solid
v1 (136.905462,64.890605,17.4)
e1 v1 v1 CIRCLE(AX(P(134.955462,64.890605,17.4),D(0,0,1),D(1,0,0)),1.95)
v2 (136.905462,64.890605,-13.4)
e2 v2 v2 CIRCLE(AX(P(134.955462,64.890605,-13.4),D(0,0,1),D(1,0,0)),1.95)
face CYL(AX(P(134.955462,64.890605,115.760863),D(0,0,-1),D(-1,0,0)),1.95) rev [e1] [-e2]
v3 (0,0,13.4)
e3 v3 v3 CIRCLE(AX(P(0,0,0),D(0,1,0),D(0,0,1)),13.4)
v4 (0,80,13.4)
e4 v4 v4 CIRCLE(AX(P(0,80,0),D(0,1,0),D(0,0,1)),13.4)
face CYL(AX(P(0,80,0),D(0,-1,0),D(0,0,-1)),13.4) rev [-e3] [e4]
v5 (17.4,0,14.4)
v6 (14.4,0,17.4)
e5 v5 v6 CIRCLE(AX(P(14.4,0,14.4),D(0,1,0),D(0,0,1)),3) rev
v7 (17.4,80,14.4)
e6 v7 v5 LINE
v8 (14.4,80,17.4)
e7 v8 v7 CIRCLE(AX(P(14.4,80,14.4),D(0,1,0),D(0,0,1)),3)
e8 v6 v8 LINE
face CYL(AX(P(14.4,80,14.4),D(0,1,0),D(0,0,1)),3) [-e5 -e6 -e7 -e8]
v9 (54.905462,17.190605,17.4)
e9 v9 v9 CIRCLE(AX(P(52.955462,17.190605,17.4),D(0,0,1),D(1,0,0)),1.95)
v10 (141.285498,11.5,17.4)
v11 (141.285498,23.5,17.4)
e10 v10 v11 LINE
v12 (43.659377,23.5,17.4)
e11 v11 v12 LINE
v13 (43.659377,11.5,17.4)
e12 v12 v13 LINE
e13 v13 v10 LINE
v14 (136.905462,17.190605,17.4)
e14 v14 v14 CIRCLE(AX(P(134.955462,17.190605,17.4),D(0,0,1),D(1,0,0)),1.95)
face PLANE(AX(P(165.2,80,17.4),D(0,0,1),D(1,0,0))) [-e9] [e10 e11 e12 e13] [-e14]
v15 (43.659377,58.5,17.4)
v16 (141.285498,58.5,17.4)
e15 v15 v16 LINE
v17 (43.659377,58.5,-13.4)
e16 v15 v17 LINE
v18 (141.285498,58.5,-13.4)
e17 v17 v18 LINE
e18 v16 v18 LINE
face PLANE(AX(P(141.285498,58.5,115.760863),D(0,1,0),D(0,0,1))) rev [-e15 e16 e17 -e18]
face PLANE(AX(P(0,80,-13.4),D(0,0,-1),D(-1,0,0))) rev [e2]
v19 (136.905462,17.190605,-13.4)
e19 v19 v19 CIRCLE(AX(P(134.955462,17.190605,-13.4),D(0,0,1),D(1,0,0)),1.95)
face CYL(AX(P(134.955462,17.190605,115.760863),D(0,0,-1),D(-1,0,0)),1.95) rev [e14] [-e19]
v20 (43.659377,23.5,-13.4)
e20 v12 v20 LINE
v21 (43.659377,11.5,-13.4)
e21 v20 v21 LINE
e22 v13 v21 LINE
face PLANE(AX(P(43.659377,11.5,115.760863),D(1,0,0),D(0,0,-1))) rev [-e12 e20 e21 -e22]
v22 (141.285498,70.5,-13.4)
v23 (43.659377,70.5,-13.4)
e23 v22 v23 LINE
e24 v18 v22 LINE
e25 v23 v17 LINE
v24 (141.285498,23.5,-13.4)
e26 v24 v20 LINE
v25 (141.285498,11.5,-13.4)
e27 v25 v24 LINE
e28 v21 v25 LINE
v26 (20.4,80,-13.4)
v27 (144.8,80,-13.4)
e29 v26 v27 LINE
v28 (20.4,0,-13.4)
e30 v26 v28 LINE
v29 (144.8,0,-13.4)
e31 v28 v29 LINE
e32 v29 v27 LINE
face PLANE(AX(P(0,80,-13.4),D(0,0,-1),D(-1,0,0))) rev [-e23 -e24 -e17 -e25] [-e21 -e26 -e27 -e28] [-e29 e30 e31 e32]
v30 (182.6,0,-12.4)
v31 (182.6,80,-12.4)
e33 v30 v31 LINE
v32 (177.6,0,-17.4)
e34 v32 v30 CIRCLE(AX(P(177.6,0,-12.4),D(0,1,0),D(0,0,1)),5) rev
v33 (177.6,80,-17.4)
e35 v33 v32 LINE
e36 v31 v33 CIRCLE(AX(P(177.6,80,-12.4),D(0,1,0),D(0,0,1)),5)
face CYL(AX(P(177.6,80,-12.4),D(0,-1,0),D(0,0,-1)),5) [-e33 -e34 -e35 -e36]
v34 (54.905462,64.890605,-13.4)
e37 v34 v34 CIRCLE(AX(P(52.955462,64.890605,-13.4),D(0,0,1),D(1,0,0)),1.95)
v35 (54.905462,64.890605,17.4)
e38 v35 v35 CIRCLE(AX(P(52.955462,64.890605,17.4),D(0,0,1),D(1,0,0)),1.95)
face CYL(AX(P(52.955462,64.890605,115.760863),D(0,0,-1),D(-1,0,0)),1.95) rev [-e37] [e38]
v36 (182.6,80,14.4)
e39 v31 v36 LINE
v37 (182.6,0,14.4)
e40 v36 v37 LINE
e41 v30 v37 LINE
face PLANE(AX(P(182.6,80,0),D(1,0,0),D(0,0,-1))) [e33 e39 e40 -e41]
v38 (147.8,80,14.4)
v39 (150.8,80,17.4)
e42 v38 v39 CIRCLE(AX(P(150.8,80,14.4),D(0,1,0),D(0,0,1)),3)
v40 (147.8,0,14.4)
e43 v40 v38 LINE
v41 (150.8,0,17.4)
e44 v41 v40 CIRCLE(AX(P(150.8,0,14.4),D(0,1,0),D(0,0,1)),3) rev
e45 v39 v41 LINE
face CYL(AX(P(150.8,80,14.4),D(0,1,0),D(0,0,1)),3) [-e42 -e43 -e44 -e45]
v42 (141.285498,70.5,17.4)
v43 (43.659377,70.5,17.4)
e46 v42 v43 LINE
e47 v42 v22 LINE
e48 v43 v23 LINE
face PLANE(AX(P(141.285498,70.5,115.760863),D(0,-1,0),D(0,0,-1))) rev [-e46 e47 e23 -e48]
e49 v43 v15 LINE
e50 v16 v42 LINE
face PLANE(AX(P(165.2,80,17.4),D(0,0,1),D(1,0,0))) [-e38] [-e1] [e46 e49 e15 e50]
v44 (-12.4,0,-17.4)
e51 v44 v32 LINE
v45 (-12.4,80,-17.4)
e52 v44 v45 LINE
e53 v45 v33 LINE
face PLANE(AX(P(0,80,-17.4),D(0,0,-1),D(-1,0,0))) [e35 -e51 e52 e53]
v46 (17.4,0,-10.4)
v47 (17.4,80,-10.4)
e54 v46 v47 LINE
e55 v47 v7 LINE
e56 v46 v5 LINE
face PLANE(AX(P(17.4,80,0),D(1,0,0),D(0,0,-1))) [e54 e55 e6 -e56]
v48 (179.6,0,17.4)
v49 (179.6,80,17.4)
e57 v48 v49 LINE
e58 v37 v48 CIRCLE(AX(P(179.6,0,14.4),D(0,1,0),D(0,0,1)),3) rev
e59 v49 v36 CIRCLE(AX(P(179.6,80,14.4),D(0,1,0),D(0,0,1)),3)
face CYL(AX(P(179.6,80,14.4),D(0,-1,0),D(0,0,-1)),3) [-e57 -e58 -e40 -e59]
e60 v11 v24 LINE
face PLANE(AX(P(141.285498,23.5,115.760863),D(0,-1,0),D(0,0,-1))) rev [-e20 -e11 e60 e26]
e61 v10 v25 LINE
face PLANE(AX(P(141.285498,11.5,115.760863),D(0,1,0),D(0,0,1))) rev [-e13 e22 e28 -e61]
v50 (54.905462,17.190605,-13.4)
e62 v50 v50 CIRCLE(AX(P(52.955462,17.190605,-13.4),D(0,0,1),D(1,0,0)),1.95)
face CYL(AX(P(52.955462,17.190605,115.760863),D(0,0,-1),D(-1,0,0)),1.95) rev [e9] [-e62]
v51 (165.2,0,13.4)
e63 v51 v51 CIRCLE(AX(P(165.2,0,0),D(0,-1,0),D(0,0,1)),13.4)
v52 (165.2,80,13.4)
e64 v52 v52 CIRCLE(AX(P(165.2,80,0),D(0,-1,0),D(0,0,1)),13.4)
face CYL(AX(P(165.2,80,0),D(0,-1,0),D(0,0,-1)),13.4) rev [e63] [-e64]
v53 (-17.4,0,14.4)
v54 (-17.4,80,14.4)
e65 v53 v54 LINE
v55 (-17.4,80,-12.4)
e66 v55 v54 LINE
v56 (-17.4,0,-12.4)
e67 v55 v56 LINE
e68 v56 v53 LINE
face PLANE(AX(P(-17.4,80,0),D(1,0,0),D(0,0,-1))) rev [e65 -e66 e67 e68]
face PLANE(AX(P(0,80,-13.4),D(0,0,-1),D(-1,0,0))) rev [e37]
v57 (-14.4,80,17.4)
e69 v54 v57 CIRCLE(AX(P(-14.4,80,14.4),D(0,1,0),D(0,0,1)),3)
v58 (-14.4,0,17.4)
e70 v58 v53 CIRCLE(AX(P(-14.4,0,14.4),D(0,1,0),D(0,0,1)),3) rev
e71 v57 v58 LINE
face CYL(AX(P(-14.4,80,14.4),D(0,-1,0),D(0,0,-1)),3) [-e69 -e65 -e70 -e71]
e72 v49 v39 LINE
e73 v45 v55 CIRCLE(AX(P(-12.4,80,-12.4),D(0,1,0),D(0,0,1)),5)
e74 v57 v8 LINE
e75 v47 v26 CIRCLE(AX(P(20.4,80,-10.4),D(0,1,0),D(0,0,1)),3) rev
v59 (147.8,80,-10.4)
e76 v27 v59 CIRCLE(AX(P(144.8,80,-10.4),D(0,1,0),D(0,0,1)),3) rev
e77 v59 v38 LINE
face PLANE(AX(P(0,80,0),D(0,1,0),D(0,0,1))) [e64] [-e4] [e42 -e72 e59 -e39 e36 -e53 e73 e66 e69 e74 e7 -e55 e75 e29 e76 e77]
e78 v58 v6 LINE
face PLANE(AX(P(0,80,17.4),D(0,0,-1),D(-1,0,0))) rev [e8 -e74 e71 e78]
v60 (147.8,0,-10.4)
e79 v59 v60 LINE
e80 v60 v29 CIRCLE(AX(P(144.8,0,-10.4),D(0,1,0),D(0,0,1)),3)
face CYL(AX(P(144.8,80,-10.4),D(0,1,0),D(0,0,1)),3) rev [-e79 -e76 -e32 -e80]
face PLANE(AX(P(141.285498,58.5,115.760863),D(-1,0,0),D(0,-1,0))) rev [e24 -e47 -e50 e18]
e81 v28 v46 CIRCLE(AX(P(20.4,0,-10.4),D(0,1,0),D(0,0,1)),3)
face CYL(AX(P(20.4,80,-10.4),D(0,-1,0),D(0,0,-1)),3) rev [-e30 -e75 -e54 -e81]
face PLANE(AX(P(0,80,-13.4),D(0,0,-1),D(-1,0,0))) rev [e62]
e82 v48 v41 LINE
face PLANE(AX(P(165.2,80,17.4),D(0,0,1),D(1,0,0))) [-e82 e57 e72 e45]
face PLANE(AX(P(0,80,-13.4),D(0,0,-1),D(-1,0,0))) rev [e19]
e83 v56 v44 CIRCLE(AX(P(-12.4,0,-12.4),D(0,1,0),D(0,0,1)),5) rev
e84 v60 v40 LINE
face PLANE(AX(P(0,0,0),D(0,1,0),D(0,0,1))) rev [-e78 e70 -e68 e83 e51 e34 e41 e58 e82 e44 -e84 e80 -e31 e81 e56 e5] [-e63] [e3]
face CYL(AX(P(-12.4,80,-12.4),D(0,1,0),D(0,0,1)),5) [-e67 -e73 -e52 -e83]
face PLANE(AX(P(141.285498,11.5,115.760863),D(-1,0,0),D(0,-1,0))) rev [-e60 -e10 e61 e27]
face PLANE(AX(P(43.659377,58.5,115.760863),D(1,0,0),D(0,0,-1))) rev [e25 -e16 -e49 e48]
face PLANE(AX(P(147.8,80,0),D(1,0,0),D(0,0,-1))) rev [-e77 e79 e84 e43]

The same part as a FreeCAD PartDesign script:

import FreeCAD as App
import Part
import Sketcher
Q = App.Units.Quantity


def edges_at(feature, points):
    """Names of the edges that pass closest to the given points."""
    edges = feature.Shape.Edges
    near = lambda p: min(range(len(edges)), key=lambda i: edges[i].distToShape(Part.Vertex(*p))[0])
    return sorted({f"Edge{near(p) + 1}" for p in points})

doc = App.newDocument("Part")
body = doc.addObject("PartDesign::Body", "Body")

# Sketch on XZ plane
sketch1 = doc.addObject("Sketcher::SketchObject", "Sketch")
body.addObject(sketch1)
sketch1.AttachmentSupport = (doc.XZ_Plane, [""])
sketch1.MapMode = "FlatFace"
sketch1.addGeometry([
    Part.LineSegment(App.Vector(82.6, -17.4, 0), App.Vector(-17.4, -17.4, 0)),  # 0
    Part.LineSegment(App.Vector(-17.4, -17.4, 0), App.Vector(-17.4, 17.4, 0)),  # 1
    Part.LineSegment(App.Vector(-17.4, 17.4, 0), App.Vector(17.4, 17.4, 0)),  # 2
    Part.LineSegment(App.Vector(17.4, 17.4, 0), App.Vector(17.4, -13.4, 0)),  # 3
    Part.LineSegment(App.Vector(17.4, -13.4, 0), App.Vector(82.6, -13.4, 0)),  # 4
    Part.LineSegment(App.Vector(82.6, -13.4, 0), App.Vector(82.6, -17.4, 0)),  # 5
    Part.Circle(App.Vector(0, 0, 0), App.Vector(0, 0, 1), 13.4),  # 6
], False)
sketch1.addConstraint([
    Sketcher.Constraint("Coincident", 0, 2, 1, 1),
    Sketcher.Constraint("Coincident", 1, 2, 2, 1),
    Sketcher.Constraint("Coincident", 2, 2, 3, 1),
    Sketcher.Constraint("Coincident", 3, 2, 4, 1),
    Sketcher.Constraint("Coincident", 4, 2, 5, 1),
    Sketcher.Constraint("Coincident", 5, 2, 0, 1),
    Sketcher.Constraint("Horizontal", 0),
    Sketcher.Constraint("Vertical", 1),
    Sketcher.Constraint("Horizontal", 2),
    Sketcher.Constraint("Vertical", 3),
    Sketcher.Constraint("Horizontal", 4),
    Sketcher.Constraint("Vertical", 5),
    Sketcher.Constraint("Coincident", 6, 3, -1, 1),
    Sketcher.Constraint("Symmetric", 0, 2, 2, 2, -1, 1),
    Sketcher.Constraint("Equal", 2, 1),
    Sketcher.Constraint("Diameter", 6, Q("26.8 mm")),
    Sketcher.Constraint("DistanceX", 0, 2, 0, 1, Q("100 mm")),
    Sketcher.Constraint("DistanceY", 5, 2, 5, 1, Q("4 mm")),
    Sketcher.Constraint("DistanceX", 2, 1, 2, 2, Q("34.8 mm")),
])
pad1 = doc.addObject("PartDesign::Pad", "Pad")
body.addObject(pad1)
pad1.Profile = sketch1
pad1.Length = 80
pad1.Reversed = True
doc.recompute()

datumplane = doc.addObject("PartDesign::Plane", "DatumPlane")
body.addObject(datumplane)
datumplane.AttachmentSupport = (doc.YZ_Plane, [""])
datumplane.MapMode = "FlatFace"
datumplane.AttachmentOffset = App.Placement(App.Vector(0, 0, 82.6), App.Rotation())
mirrored = doc.addObject("PartDesign::Mirrored", "Mirrored")
body.addObject(mirrored)
mirrored.Originals = [pad1]
mirrored.MirrorPlane = (datumplane, [""])
body.Tip = mirrored
doc.recompute()

fillet = doc.addObject("PartDesign::Fillet", "Fillet")
body.addObject(fillet)
fillet.Base = (mirrored, edges_at(mirrored, [(-17.4, 40, -17.4), (182.6, 40, -17.4)]))
fillet.Radius = 5
doc.recompute()

fillet2 = doc.addObject("PartDesign::Fillet", "Fillet001")
body.addObject(fillet2)
fillet2.Base = (fillet, edges_at(fillet, [
    (17.4, 40, 17.4),
    (-17.4, 40, 17.4),
    (147.8, 40, 17.4),
    (182.6, 40, 17.4),
]))
fillet2.Radius = 3
doc.recompute()

fillet3 = doc.addObject("PartDesign::Fillet", "Fillet002")
body.addObject(fillet3)
fillet3.Base = (fillet2, edges_at(fillet2, [(17.4, 40, -13.4), (147.8, 40, -13.4)]))
fillet3.Radius = 3

# Sketch on XY plane
sketch2 = doc.addObject("Sketcher::SketchObject", "Sketch001")
body.addObject(sketch2)
sketch2.AttachmentSupport = (doc.XY_Plane, [""])
sketch2.MapMode = "FlatFace"
sketch2.AttachmentOffset = App.Placement(App.Vector(0, 0, -13.4), App.Rotation())
sketch2.addGeometry([
    Part.LineSegment(App.Vector(43.659377, 23.5, 0), App.Vector(43.659377, 11.5, 0)),  # 0
    Part.LineSegment(App.Vector(43.659377, 11.5, 0), App.Vector(141.285498, 11.5, 0)),  # 1
    Part.LineSegment(App.Vector(141.285498, 11.5, 0), App.Vector(141.285498, 23.5, 0)),  # 2
    Part.LineSegment(App.Vector(141.285498, 23.5, 0), App.Vector(43.659377, 23.5, 0)),  # 3
    Part.Circle(App.Vector(52.955462, 17.190605, 0), App.Vector(0, 0, 1), 1.95),  # 4
    Part.Circle(App.Vector(134.955462, 17.190605, 0), App.Vector(0, 0, 1), 1.95),  # 5
    Part.LineSegment(App.Vector(43.659377, 70.5, 0), App.Vector(43.659377, 58.5, 0)),  # 6
    Part.LineSegment(App.Vector(43.659377, 58.5, 0), App.Vector(141.285498, 58.5, 0)),  # 7
    Part.LineSegment(App.Vector(141.285498, 58.5, 0), App.Vector(141.285498, 70.5, 0)),  # 8
    Part.LineSegment(App.Vector(141.285498, 70.5, 0), App.Vector(43.659377, 70.5, 0)),  # 9
    Part.Circle(App.Vector(52.955462, 64.890605, 0), App.Vector(0, 0, 1), 1.95),  # 10
    Part.Circle(App.Vector(134.955462, 64.890605, 0), App.Vector(0, 0, 1), 1.95),  # 11
], False)
sketch2.addConstraint([
    Sketcher.Constraint("Coincident", 0, 2, 1, 1),
    Sketcher.Constraint("Coincident", 1, 2, 2, 1),
    Sketcher.Constraint("Coincident", 2, 2, 3, 1),
    Sketcher.Constraint("Coincident", 3, 2, 0, 1),
    Sketcher.Constraint("Coincident", 6, 2, 7, 1),
    Sketcher.Constraint("Coincident", 7, 2, 8, 1),
    Sketcher.Constraint("Coincident", 8, 2, 9, 1),
    Sketcher.Constraint("Coincident", 9, 2, 6, 1),
    Sketcher.Constraint("Vertical", 0),
    Sketcher.Constraint("Horizontal", 1),
    Sketcher.Constraint("Vertical", 2),
    Sketcher.Constraint("Horizontal", 3),
    Sketcher.Constraint("Vertical", 6),
    Sketcher.Constraint("Horizontal", 7),
    Sketcher.Constraint("Vertical", 8),
    Sketcher.Constraint("Horizontal", 9),
    Sketcher.Constraint("Equal", 4, 5),
    Sketcher.Constraint("Equal", 5, 10),
    Sketcher.Constraint("Equal", 10, 11),
    Sketcher.Constraint("Horizontal", 4, 3, 5, 3),
    Sketcher.Constraint("Horizontal", 10, 3, 11, 3),
    Sketcher.Constraint("Vertical", 4, 3, 10, 3),
    Sketcher.Constraint("Vertical", 5, 3, 11, 3),
    Sketcher.Constraint("Vertical", 3, 2, 6, 2),
    Sketcher.Constraint("Vertical", 2, 2, 7, 2),
    Sketcher.Constraint("Equal", 2, 6),
    Sketcher.Constraint("Diameter", 4, Q("3.9 mm")),
    Sketcher.Constraint("DistanceY", 0, 2, 0, 1, Q("12 mm")),
    Sketcher.Constraint("DistanceX", 4, 3, 5, 3, Q("82 mm")),
    Sketcher.Constraint("DistanceY", 3, 2, 6, 2, Q("35 mm")),
    Sketcher.Constraint("DistanceY", -1, 1, 0, 2, Q("11.5 mm")),
    Sketcher.Constraint("DistanceY", 4, 3, 10, 3, Q("47.7 mm")),
    Sketcher.Constraint("DistanceX", 1, 1, 1, 2, Q("97.62612 mm")),
    Sketcher.Constraint("DistanceX", -1, 1, 4, 3, Q("52.955462 mm")),
    Sketcher.Constraint("DistanceY", -1, 1, 4, 3, Q("17.190605 mm")),
    Sketcher.Constraint("DistanceX", -1, 1, 0, 2, Q("43.659377 mm")),
])
pad2 = doc.addObject("PartDesign::Pad", "Pad001")
body.addObject(pad2)
pad2.Profile = sketch2
pad2.Length = 30.8

doc.recompute()
